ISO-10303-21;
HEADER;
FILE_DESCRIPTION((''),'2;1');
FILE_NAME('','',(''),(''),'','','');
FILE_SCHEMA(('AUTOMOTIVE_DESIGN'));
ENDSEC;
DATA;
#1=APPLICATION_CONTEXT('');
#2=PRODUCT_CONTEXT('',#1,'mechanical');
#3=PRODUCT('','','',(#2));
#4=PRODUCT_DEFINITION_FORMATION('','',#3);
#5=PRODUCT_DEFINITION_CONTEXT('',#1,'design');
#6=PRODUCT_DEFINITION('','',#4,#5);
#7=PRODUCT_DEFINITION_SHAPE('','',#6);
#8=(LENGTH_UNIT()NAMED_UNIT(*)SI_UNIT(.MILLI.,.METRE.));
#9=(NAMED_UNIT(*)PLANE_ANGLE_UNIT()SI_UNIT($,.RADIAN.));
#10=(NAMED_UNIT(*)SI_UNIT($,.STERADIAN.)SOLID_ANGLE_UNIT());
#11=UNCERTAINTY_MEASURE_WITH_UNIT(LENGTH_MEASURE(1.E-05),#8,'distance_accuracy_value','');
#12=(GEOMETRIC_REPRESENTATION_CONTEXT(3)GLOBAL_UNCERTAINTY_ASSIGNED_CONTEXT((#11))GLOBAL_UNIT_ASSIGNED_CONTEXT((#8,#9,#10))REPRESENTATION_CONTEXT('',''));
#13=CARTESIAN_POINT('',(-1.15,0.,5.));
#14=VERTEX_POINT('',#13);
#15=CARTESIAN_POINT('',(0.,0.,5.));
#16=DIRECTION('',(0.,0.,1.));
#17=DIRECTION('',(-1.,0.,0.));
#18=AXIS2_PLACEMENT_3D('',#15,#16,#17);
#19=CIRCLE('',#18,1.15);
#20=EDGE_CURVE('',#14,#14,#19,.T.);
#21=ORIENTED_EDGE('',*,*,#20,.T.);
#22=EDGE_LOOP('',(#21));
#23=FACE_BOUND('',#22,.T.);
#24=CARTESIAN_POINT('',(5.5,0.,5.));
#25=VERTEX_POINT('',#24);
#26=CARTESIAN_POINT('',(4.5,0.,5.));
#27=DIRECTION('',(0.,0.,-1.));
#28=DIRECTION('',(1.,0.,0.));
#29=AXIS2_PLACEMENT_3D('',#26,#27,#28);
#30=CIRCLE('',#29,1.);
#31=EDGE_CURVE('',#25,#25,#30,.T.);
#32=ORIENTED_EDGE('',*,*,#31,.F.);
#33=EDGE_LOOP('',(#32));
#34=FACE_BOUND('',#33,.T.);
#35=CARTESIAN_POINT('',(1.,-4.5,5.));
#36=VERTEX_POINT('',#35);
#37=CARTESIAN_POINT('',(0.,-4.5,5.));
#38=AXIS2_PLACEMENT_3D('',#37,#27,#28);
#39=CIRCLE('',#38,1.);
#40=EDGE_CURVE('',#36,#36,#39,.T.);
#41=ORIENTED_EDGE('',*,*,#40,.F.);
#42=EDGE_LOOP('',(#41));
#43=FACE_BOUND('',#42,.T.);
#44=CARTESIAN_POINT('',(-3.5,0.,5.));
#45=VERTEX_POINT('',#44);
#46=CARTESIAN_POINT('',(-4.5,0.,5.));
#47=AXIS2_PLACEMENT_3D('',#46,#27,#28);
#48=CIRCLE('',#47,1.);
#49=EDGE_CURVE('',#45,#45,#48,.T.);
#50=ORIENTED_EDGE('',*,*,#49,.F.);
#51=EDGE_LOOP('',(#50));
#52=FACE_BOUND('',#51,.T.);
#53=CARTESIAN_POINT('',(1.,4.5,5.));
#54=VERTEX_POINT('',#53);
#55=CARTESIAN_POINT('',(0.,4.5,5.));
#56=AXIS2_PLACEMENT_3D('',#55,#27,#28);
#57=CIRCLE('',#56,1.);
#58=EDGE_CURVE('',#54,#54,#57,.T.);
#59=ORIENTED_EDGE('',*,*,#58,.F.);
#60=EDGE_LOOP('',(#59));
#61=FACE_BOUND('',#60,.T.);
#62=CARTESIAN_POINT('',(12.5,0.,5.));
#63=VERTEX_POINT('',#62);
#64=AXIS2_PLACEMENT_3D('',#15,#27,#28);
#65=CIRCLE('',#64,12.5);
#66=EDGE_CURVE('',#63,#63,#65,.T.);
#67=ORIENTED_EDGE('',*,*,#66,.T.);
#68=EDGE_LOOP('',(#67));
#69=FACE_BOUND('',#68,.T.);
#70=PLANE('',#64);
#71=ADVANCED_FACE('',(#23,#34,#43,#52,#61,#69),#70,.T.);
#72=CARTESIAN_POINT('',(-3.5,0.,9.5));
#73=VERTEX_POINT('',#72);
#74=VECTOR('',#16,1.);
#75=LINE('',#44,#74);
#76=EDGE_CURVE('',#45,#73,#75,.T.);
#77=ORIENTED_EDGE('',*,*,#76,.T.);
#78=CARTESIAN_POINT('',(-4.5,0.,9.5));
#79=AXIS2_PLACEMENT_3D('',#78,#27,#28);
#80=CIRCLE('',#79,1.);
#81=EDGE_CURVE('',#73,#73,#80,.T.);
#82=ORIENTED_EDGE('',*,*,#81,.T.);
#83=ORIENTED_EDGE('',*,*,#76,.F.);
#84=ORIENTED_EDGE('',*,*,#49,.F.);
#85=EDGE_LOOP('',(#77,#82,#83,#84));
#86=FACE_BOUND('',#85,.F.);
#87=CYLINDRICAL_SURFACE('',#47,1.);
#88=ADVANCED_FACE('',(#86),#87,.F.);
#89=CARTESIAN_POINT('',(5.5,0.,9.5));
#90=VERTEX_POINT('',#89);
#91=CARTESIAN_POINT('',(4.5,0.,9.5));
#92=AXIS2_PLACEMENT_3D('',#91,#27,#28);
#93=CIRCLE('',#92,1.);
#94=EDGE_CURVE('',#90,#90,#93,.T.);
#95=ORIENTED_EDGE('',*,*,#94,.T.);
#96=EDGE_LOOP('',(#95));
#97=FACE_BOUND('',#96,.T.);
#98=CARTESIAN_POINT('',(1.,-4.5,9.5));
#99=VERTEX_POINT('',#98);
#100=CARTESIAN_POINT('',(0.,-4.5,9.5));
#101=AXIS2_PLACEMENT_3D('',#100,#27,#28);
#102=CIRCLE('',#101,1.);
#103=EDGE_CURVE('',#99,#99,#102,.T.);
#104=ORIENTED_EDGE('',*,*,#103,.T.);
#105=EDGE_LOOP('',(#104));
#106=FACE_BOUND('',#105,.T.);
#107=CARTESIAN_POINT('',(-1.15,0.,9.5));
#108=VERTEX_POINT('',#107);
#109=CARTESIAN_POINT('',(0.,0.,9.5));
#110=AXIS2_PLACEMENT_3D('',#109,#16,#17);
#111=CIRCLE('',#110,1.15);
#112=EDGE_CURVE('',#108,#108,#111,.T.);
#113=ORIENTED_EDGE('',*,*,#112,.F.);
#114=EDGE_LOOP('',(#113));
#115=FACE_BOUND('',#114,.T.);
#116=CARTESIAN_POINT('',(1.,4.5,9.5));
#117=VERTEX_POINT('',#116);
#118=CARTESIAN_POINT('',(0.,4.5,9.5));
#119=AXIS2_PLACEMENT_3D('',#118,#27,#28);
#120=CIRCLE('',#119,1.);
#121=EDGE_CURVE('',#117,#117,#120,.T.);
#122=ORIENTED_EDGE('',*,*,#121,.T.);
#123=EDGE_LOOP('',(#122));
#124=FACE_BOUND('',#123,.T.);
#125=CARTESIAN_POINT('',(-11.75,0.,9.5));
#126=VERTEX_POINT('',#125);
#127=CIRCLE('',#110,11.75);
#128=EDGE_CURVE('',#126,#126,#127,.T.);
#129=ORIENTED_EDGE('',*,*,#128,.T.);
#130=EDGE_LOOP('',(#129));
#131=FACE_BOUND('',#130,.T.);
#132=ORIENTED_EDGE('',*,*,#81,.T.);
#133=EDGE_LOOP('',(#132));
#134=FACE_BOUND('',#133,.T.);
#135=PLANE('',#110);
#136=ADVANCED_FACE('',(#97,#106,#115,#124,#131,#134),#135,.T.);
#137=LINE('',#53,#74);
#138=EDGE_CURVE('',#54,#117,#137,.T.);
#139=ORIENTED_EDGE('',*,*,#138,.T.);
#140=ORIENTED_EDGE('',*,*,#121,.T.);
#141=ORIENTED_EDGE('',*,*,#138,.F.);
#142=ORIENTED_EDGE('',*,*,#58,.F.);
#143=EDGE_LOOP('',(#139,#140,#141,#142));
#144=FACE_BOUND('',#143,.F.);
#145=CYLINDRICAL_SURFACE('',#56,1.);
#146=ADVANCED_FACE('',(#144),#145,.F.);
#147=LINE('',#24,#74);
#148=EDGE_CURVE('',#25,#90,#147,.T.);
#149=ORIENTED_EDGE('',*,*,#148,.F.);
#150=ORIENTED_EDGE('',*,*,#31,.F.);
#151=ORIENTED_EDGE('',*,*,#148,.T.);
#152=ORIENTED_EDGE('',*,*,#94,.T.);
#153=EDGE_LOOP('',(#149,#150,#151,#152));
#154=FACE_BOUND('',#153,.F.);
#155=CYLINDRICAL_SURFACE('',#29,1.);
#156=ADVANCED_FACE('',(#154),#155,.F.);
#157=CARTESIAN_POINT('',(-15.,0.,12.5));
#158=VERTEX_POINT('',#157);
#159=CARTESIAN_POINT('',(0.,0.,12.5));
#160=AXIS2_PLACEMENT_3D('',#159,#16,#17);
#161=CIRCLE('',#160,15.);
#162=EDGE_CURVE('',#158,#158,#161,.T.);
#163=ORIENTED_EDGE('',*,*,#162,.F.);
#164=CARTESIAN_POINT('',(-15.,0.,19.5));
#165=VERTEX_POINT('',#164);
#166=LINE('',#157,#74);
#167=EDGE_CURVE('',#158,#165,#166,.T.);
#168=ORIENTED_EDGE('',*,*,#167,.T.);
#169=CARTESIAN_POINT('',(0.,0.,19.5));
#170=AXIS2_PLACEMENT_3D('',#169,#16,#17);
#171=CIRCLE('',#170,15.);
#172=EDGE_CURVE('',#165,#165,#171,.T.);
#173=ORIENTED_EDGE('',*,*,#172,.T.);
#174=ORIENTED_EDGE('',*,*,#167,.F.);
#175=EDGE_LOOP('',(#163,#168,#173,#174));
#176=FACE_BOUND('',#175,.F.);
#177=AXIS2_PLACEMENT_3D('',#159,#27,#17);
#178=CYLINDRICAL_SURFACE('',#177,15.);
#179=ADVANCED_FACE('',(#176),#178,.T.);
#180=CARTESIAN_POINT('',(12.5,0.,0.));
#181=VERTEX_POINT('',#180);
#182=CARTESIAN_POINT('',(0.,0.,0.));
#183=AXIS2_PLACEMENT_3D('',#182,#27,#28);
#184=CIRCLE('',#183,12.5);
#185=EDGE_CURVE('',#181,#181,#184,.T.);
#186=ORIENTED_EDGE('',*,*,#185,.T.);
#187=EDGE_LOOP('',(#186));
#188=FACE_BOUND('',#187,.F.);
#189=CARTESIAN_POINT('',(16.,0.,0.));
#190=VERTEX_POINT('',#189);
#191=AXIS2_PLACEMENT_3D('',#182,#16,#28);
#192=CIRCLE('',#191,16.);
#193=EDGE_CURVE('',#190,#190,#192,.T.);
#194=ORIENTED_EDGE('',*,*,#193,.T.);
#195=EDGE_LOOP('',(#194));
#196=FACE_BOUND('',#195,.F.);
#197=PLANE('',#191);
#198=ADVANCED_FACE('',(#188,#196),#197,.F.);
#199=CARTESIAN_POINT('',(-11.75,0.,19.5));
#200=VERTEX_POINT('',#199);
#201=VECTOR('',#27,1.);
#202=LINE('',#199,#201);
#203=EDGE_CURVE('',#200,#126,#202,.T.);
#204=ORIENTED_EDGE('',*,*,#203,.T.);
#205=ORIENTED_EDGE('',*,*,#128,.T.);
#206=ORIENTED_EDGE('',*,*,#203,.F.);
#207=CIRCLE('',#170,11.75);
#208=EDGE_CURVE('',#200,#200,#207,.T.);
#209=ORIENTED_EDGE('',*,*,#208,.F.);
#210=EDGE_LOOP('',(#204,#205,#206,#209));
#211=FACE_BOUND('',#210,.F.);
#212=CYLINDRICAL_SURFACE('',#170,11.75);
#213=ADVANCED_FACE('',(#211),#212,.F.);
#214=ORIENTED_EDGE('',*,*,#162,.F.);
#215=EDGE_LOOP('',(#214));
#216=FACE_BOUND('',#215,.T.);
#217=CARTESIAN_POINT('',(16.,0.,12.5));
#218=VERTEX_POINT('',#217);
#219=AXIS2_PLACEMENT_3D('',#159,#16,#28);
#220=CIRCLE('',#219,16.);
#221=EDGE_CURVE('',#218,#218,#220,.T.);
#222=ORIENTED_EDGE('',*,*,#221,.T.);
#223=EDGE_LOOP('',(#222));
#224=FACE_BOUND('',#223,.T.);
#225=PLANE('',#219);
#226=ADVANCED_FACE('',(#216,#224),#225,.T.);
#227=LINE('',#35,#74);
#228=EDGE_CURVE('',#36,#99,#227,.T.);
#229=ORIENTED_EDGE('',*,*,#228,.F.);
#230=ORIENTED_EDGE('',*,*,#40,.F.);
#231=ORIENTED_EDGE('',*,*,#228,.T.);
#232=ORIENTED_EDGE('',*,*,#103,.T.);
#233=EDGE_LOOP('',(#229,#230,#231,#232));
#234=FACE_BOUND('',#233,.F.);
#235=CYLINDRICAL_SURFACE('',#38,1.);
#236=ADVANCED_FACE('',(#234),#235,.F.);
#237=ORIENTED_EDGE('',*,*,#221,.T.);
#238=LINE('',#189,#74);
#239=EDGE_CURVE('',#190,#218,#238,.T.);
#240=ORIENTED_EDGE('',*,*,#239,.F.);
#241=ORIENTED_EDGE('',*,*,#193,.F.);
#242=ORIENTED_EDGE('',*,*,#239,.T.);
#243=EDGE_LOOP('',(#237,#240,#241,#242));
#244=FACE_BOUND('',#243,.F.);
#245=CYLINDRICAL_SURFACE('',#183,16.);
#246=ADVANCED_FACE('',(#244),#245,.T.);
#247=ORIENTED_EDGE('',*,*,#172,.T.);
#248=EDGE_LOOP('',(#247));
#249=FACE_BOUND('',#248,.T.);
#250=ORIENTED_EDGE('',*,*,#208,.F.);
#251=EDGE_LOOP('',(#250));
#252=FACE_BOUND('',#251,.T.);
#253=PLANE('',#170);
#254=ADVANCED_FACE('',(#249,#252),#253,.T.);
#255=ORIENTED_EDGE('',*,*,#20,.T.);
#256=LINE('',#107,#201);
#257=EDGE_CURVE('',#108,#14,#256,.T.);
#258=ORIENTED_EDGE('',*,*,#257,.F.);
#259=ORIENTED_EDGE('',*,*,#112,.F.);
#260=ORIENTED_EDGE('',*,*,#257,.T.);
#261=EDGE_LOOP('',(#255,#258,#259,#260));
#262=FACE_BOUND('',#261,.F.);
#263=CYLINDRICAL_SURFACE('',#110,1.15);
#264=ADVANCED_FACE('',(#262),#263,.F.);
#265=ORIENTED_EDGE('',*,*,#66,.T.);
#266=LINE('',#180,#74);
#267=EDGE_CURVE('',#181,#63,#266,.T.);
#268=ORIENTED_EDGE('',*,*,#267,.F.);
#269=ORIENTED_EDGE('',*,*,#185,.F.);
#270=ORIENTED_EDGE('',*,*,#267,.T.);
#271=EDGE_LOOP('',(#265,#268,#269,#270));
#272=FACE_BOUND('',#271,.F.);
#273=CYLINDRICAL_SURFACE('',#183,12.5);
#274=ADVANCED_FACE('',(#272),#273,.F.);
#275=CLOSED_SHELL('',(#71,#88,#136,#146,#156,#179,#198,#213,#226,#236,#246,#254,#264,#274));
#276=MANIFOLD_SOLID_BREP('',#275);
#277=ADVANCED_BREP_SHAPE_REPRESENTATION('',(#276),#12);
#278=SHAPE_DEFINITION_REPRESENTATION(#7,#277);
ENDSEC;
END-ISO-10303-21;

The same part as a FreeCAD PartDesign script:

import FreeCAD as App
import Part
import Sketcher

V = App.Vector
Q = App.Units.Quantity

doc = App.newDocument("Part")
body = doc.addObject("PartDesign::Body", "Body")

# Sketch on XY plane
sketch1 = body.newObject("Sketcher::SketchObject", "Sketch")
sketch1.AttachmentSupport = (doc.getObject("XY_Plane"), [""])
sketch1.MapMode = "FlatFace"
sketch1.addGeometry(Part.Circle(V(0, 0, 0), V(0, 0, 1), 16), False)
sketch1.addConstraint(Sketcher.Constraint("Coincident", 0, 3, -1, 1))
sketch1.addConstraint(Sketcher.Constraint("Diameter", 0, Q("32 mm")))
pad1 = body.newObject("PartDesign::Pad", "Pad")
pad1.Profile = sketch1
pad1.Length = 12.5

# Sketch on XY plane
sketch2 = body.newObject("Sketcher::SketchObject", "Sketch001")
sketch2.AttachmentSupport = (doc.getObject("XY_Plane"), [""])
sketch2.MapMode = "FlatFace"
sketch2.AttachmentOffset = App.Placement(V(0, 0, 12.5), App.Rotation())
sketch2.addGeometry(Part.Circle(V(0, 0, 0), V(0, 0, 1), 15), False)
sketch2.addConstraint(Sketcher.Constraint("Coincident", 0, 3, -1, 1))
sketch2.addConstraint(Sketcher.Constraint("Diameter", 0, Q("30 mm")))
pad2 = body.newObject("PartDesign::Pad", "Pad001")
pad2.Profile = sketch2
pad2.Length = 7

# Sketch on XY plane
sketch3 = body.newObject("Sketcher::SketchObject", "Sketch002")
sketch3.AttachmentSupport = (doc.getObject("XY_Plane"), [""])
sketch3.MapMode = "FlatFace"
sketch3.AttachmentOffset = App.Placement(V(0, 0, 19.5), App.Rotation())
sketch3.addGeometry(Part.Circle(V(0, 0, 0), V(0, 0, 1), 12), False)
sketch3.addConstraint(Sketcher.Constraint("Coincident", 0, 3, -1, 1))
sketch3.addConstraint(Sketcher.Constraint("Diameter", 0, Q("23.5 mm")))
pocket1 = body.newObject("PartDesign::Pocket", "Pocket")
pocket1.Profile = sketch3
pocket1.Length = 10

# Sketch on XY plane
sketch4 = body.newObject("Sketcher::SketchObject", "Sketch003")
sketch4.AttachmentSupport = (doc.getObject("XY_Plane"), [""])
sketch4.MapMode = "FlatFace"
sketch4.AttachmentOffset = App.Placement(V(0, 0, 9.5), App.Rotation())
sketch4.addGeometry(Part.Circle(V(0, 0, 0), V(0, 0, 1), 1.1), False)
sketch4.addConstraint(Sketcher.Constraint("Coincident", 0, 3, -1, 1))
sketch4.addConstraint(Sketcher.Constraint("Diameter", 0, Q("2.3 mm")))
pocket2 = body.newObject("PartDesign::Pocket", "Pocket001")
pocket2.Profile = sketch4
pocket2.Length = 300

# Sketch on XY plane
sketch5 = body.newObject("Sketcher::SketchObject", "Sketch004")
sketch5.AttachmentSupport = (doc.getObject("XY_Plane"), [""])
sketch5.MapMode = "FlatFace"
sketch5.addGeometry(Part.Circle(V(0, 0, 0), V(0, 0, 1), 12.5), False)
sketch5.addGeometry(Part.Circle(V(0, 0, 0), V(0, 0, 1), 1.1), False)
sketch5.addConstraint(Sketcher.Constraint("Coincident", 0, 3, -1, 1))
sketch5.addConstraint(Sketcher.Constraint("Coincident", 1, 3, -1, 1))
sketch5.addConstraint(Sketcher.Constraint("Diameter", 0, Q("25 mm")))
sketch5.addConstraint(Sketcher.Constraint("Diameter", 1, Q("2.3 mm")))
pocket3 = body.newObject("PartDesign::Pocket", "Pocket002")
pocket3.Profile = sketch5
pocket3.Length = 5
pocket3.Reversed = True

# Sketch on XY plane
sketch6 = body.newObject("Sketcher::SketchObject", "Sketch005")
sketch6.AttachmentSupport = (doc.getObject("XY_Plane"), [""])
sketch6.MapMode = "FlatFace"
sketch6.AttachmentOffset = App.Placement(V(0, 0, 5), App.Rotation())
sketch6.addGeometry(Part.Circle(V(0, 4.5, 0), V(0, 0, 1), 1), False)
sketch6.addConstraint(Sketcher.Constraint("PointOnObject", 0, 3, -2))
sketch6.addConstraint(Sketcher.Constraint("Diameter", 0, Q("2 mm")))
sketch6.addConstraint(Sketcher.Constraint("DistanceY", -1, 1, 0, 3, Q("4.5 mm")))
pocket4 = body.newObject("PartDesign::Pocket", "Pocket003")
pocket4.Profile = sketch6
pocket4.Length = 300
pocket4.Reversed = True

# Sketch on XY plane
sketch7 = body.newObject("Sketcher::SketchObject", "Sketch006")
sketch7.AttachmentSupport = (doc.getObject("XY_Plane"), [""])
sketch7.MapMode = "FlatFace"
sketch7.AttachmentOffset = App.Placement(V(0, 0, 5), App.Rotation())
sketch7.addGeometry(Part.Circle(V(4.5, 0, 0), V(0, 0, 1), 1), False)
sketch7.addConstraint(Sketcher.Constraint("PointOnObject", 0, 3, -1))
sketch7.addConstraint(Sketcher.Constraint("Diameter", 0, Q("2 mm")))
sketch7.addConstraint(Sketcher.Constraint("DistanceX", -1, 1, 0, 3, Q("4.5 mm")))
pocket5 = body.newObject("PartDesign::Pocket", "Pocket004")
pocket5.Profile = sketch7
pocket5.Length = 300
pocket5.Reversed = True

# Sketch on XY plane
sketch8 = body.newObject("Sketcher::SketchObject", "Sketch007")
sketch8.AttachmentSupport = (doc.getObject("XY_Plane"), [""])
sketch8.MapMode = "FlatFace"
sketch8.AttachmentOffset = App.Placement(V(0, 0, 5), App.Rotation())
sketch8.addGeometry(Part.Circle(V(0, -4.5, 0), V(0, 0, 1), 1), False)
sketch8.addConstraint(Sketcher.Constraint("PointOnObject", 0, 3, -2))
sketch8.addConstraint(Sketcher.Constraint("Diameter", 0, Q("2 mm")))
sketch8.addConstraint(Sketcher.Constraint("DistanceY", 0, 3, -1, 1, Q("4.5 mm")))
pocket6 = body.newObject("PartDesign::Pocket", "Pocket005")
pocket6.Profile = sketch8
pocket6.Length = 300
pocket6.Reversed = True

# Sketch on XY plane
sketch9 = body.newObject("Sketcher::SketchObject", "Sketch008")
sketch9.AttachmentSupport = (doc.getObject("XY_Plane"), [""])
sketch9.MapMode = "FlatFace"
sketch9.AttachmentOffset = App.Placement(V(0, 0, 5), App.Rotation())
sketch9.addGeometry(Part.Circle(V(-4.5, 0, 0), V(0, 0, 1), 1), False)
sketch9.addConstraint(Sketcher.Constraint("PointOnObject", 0, 3, -1))
sketch9.addConstraint(Sketcher.Constraint("Diameter", 0, Q("2 mm")))
sketch9.addConstraint(Sketcher.Constraint("DistanceX", 0, 3, -1, 1, Q("4.5 mm")))
pocket7 = body.newObject("PartDesign::Pocket", "Pocket006")
pocket7.Profile = sketch9
pocket7.Length = 300
pocket7.Reversed = True

doc.recompute()
